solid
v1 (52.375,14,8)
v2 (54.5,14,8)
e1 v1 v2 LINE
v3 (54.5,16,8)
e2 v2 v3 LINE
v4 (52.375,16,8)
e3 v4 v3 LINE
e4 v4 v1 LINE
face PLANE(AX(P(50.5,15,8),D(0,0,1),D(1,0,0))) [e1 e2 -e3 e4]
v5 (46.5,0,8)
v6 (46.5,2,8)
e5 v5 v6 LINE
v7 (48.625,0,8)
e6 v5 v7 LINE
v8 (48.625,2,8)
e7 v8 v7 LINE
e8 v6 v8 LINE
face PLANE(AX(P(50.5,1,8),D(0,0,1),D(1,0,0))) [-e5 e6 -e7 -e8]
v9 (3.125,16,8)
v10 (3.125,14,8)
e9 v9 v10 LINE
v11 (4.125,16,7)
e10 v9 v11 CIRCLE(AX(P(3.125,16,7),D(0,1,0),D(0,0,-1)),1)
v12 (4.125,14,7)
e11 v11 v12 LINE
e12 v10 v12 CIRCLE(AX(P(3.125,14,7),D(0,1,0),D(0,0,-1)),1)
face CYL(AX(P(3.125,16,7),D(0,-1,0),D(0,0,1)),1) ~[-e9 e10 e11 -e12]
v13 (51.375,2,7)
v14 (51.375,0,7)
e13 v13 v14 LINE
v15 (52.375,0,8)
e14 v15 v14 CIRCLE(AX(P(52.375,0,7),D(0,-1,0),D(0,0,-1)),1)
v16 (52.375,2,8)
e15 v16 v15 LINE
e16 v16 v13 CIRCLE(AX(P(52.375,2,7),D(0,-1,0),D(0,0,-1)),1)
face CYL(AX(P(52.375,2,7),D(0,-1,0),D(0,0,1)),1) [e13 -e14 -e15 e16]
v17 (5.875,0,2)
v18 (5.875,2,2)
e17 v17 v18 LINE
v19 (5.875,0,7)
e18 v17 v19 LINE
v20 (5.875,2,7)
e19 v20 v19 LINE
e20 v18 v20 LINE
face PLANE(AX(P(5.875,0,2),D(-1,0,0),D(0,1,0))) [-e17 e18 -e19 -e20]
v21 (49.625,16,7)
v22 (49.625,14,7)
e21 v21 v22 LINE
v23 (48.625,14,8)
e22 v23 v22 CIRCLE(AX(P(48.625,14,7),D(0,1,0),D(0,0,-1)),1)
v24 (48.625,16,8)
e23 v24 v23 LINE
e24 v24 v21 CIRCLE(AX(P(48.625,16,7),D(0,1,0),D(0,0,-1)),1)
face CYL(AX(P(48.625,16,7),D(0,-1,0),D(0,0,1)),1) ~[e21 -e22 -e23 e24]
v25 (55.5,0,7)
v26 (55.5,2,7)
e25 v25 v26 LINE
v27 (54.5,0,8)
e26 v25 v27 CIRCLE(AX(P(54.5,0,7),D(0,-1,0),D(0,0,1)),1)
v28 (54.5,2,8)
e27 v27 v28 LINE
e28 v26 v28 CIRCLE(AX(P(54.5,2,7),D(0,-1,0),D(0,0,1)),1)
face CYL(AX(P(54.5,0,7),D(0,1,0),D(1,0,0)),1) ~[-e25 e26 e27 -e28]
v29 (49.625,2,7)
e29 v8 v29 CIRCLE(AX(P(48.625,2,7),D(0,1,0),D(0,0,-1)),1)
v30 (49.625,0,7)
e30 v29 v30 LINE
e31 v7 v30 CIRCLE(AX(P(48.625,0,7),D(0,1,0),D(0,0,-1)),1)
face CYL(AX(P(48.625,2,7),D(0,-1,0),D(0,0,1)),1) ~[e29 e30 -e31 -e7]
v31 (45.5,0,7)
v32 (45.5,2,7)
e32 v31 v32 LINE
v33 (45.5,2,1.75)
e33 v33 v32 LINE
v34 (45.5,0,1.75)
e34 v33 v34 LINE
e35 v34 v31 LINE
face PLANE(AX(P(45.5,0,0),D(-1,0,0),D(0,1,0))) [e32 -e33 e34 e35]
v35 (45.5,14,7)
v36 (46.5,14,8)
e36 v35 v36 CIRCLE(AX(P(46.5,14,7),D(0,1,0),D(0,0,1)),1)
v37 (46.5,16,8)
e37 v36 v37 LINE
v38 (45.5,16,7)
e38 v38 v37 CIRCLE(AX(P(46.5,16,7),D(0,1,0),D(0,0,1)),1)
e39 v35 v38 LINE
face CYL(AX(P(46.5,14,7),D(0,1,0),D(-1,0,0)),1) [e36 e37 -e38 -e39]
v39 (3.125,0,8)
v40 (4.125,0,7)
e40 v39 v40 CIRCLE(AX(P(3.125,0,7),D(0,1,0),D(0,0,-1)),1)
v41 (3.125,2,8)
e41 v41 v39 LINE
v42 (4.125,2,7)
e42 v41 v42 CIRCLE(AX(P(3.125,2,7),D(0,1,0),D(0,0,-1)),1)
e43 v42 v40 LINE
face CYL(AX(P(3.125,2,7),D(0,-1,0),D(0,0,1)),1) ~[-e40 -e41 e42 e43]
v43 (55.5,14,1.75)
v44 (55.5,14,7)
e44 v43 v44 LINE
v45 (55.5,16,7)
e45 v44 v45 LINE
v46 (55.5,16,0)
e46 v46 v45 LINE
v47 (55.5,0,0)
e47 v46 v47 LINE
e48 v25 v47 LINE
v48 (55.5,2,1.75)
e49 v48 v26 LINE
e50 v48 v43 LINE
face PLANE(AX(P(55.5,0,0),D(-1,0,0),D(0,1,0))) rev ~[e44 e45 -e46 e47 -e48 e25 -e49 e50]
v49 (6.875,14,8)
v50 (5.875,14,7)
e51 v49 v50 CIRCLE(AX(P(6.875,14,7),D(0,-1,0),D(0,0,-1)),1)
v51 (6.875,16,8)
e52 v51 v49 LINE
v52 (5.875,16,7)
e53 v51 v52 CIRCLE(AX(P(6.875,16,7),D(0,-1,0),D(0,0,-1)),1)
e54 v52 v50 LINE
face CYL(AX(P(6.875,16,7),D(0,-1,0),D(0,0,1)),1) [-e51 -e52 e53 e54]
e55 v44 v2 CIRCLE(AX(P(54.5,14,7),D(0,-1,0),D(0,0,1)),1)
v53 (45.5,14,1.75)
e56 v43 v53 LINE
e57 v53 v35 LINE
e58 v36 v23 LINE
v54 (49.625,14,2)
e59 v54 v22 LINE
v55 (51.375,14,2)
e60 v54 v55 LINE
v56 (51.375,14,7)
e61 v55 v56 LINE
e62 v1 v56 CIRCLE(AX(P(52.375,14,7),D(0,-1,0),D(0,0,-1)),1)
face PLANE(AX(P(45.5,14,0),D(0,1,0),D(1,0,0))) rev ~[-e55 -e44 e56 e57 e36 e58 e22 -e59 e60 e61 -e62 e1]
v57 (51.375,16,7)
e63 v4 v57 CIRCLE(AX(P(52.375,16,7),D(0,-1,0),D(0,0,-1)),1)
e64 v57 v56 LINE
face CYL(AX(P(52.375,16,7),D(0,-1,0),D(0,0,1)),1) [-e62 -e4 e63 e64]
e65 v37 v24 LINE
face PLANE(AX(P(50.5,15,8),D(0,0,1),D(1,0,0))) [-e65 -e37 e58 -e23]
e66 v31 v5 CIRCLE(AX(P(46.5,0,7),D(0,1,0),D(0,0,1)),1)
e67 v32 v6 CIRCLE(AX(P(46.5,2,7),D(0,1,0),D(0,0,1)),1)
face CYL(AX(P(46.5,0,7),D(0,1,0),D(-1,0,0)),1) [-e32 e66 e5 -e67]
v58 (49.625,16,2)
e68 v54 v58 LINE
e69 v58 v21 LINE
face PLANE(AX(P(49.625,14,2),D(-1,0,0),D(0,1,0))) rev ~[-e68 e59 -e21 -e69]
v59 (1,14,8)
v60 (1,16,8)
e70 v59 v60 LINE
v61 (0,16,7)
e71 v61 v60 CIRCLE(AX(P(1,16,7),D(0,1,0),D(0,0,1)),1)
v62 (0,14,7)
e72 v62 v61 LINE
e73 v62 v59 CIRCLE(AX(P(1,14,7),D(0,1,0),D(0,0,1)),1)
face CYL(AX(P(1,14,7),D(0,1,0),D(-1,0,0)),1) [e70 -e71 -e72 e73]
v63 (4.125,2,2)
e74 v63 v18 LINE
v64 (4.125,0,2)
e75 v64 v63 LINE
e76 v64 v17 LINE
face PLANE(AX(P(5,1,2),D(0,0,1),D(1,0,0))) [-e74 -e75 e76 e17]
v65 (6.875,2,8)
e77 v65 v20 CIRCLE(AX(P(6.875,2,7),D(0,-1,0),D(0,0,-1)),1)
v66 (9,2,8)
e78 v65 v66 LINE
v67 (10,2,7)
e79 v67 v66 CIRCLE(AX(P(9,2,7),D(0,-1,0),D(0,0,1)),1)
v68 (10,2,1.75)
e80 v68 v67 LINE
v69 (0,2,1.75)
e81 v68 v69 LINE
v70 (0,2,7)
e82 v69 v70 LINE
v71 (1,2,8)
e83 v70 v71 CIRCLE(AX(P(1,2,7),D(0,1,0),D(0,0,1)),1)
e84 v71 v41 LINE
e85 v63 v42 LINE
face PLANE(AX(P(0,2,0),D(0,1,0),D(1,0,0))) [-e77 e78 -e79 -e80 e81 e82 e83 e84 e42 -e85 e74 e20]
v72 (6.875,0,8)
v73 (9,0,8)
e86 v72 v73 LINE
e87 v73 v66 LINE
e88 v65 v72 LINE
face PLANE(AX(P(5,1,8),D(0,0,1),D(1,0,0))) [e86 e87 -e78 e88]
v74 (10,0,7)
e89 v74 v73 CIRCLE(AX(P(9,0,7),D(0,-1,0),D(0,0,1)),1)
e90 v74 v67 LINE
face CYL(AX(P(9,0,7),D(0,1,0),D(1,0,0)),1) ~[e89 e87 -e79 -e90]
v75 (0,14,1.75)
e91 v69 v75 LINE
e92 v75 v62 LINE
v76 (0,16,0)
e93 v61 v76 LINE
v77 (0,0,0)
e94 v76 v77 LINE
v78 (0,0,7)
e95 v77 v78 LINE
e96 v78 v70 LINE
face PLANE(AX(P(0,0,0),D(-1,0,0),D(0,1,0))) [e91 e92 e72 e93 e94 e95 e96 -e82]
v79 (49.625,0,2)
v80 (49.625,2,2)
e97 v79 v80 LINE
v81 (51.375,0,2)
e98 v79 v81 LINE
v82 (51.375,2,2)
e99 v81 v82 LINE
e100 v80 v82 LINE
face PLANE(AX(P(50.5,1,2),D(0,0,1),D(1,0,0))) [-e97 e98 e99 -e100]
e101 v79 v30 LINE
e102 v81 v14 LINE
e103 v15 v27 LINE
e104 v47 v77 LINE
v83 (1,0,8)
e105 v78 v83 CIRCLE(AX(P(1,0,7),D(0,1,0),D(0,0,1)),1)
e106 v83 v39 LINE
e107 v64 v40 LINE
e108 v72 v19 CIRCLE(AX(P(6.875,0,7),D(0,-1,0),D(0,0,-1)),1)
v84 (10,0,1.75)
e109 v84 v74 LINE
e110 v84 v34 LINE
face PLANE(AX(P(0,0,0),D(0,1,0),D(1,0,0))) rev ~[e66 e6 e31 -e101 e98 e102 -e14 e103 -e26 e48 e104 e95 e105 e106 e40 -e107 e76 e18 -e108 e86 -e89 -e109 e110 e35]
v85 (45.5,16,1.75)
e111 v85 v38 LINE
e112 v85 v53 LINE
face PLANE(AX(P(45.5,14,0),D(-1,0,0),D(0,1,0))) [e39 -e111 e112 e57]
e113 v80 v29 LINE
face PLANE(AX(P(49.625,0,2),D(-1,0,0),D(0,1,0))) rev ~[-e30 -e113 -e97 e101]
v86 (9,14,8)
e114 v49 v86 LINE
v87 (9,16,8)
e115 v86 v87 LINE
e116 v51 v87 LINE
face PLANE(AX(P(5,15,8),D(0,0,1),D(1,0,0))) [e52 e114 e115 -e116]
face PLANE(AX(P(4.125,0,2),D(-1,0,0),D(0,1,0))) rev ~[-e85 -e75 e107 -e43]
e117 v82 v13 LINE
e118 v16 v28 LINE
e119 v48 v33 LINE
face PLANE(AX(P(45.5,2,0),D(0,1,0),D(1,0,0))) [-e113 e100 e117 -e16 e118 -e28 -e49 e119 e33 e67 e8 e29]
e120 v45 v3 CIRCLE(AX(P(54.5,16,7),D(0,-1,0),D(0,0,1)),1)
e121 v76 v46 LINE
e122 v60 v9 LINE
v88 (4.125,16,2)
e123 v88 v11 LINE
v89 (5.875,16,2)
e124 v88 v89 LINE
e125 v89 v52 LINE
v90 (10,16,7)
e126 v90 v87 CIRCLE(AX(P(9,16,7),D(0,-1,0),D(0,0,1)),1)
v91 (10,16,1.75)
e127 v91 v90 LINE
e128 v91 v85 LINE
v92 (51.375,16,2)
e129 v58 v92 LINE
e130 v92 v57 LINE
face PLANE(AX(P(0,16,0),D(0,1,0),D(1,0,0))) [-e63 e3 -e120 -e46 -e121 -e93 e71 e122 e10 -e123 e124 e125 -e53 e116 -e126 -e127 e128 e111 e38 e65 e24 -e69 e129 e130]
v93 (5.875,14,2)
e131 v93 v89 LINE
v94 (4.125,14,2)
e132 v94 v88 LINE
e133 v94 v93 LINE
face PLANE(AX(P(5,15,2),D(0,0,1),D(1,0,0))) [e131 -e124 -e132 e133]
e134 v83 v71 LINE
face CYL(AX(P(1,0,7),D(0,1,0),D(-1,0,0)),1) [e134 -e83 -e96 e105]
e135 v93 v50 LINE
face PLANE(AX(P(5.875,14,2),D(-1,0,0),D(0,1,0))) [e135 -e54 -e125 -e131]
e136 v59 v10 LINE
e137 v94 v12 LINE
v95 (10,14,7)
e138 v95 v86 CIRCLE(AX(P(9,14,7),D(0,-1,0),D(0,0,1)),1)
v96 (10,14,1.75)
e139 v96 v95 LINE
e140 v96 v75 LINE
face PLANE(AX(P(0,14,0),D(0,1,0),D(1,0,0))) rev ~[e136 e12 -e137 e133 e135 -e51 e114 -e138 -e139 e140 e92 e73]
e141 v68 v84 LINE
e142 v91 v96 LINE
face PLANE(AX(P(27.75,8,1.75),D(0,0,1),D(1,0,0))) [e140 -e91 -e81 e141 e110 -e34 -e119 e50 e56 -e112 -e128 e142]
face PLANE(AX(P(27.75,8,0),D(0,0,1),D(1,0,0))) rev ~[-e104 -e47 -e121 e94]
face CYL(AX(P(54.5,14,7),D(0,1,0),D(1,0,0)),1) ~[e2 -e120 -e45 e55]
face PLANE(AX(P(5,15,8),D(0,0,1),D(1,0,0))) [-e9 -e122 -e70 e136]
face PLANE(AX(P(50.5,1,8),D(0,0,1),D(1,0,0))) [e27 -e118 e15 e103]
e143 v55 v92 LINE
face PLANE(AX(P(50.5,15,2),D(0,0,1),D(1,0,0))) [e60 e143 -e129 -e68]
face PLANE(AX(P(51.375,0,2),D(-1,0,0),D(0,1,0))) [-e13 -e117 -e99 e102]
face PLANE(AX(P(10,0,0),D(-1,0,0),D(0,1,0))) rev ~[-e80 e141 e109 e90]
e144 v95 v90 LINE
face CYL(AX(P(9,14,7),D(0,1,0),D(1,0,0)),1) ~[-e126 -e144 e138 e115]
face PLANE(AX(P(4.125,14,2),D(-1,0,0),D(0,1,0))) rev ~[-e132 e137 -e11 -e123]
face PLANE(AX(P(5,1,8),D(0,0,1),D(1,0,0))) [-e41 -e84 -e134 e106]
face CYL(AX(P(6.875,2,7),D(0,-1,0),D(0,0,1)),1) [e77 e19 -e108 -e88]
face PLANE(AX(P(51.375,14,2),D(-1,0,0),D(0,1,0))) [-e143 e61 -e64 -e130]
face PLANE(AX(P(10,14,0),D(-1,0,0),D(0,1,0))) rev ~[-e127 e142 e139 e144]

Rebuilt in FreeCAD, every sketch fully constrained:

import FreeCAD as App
import Part
import Sketcher


def edges_at(feature, points):
    """Names of the edges that pass closest to the given points."""
    edges = feature.Shape.Edges
    near = lambda p: min(range(len(edges)), key=lambda i: edges[i].distToShape(Part.Vertex(*p))[0])
    return sorted({f"Edge{near(p) + 1}" for p in points})


def add_polygon(sketch, points):
    """Adds a closed chain of lines whose ends are joined by coincident constraints."""
    first, n = sketch.GeometryCount, len(points)
    for a, b in zip(points, points[1:] + points[:1]):
        sketch.addGeometry(Part.LineSegment(App.Vector(*a, 0), App.Vector(*b, 0)), False)
    for i in range(n):
        sketch.addConstraint(Sketcher.Constraint("Coincident", first + i, 2, first + (i + 1) % n, 1))

doc = App.newDocument("Part")
body = doc.addObject("PartDesign::Body", "Body")

# Sketch on XY plane
sketch1 = body.newObject("Sketcher::SketchObject", "Sketch")
sketch1.AttachmentSupport = (doc.getObject("XY_Plane"), [""])
sketch1.MapMode = "FlatFace"
sketch1.AttachmentOffset = App.Placement(App.Vector(0, 0, 2), App.Rotation())
add_polygon(sketch1, [(4.1, 2), (4.1, 0), (5.9, 0), (5.9, 2)])  # lines 0-3
sketch1.addConstraint(Sketcher.Constraint("Vertical", 0))
sketch1.addConstraint(Sketcher.Constraint("Horizontal", 1))
sketch1.addConstraint(Sketcher.Constraint("Vertical", 2))
sketch1.addConstraint(Sketcher.Constraint("Horizontal", 3))
sketch1.addConstraint(Sketcher.Constraint("PointOnObject", 0, 2, -1))
sketch1.addConstraint(Sketcher.Constraint("DistanceY", 0, 2, 0, 1, 2.0))
sketch1.addConstraint(Sketcher.Constraint("DistanceX", 1, 1, 1, 2, 1.75))
sketch1.addConstraint(Sketcher.Constraint("DistanceX", -1, 1, 0, 2, 4.125))
pad1 = body.newObject("PartDesign::Pad", "Pad")
pad1.Profile = sketch1
pad1.Length = 10
body2 = doc.addObject("PartDesign::Body", "Body001")

# Sketch on XY plane
sketch2 = body2.newObject("Sketcher::SketchObject", "Sketch001")
sketch2.AttachmentSupport = (doc.getObject("XY_Plane001"), [""])
sketch2.MapMode = "FlatFace"
add_polygon(sketch2, [(0, 2), (0, 0), (10, 0), (10, 2)])  # lines 0-3
sketch2.addConstraint(Sketcher.Constraint("Vertical", 0))
sketch2.addConstraint(Sketcher.Constraint("Horizontal", 1))
sketch2.addConstraint(Sketcher.Constraint("Vertical", 2))
sketch2.addConstraint(Sketcher.Constraint("Horizontal", 3))
sketch2.addConstraint(Sketcher.Constraint("Coincident", 0, 2, -1, 1))
sketch2.addConstraint(Sketcher.Constraint("DistanceX", 1, 1, 1, 2, 10.0))
sketch2.addConstraint(Sketcher.Constraint("DistanceY", 0, 2, 0, 1, 2.0))
pad2 = body2.newObject("PartDesign::Pad", "Pad001")
pad2.Profile = sketch2
pad2.Length = 8
doc.recompute()

boolean = body2.newObject("PartDesign::Boolean", "Boolean")
boolean.Type = "Cut"
boolean.addObjects([body])
doc.recompute()

fillet = body2.newObject("PartDesign::Fillet", "Fillet")
fillet.Base = (boolean, edges_at(boolean, [
    (0, 1, 8),
    (4.125, 1, 8),
    (10, 1, 8),
    (5.875, 1, 8),
]))
fillet.Radius = 1
body3 = doc.addObject("PartDesign::Body", "Body002")

# Sketch on XY plane
sketch3 = body3.newObject("Sketcher::SketchObject", "Sketch002")
sketch3.AttachmentSupport = (doc.getObject("XY_Plane002"), [""])
sketch3.MapMode = "FlatFace"
sketch3.AttachmentOffset = App.Placement(App.Vector(0, 0, 2), App.Rotation())
add_polygon(sketch3, [(4.1, 2), (4.1, 0), (5.9, 0), (5.9, 2)])  # lines 0-3
sketch3.addConstraint(Sketcher.Constraint("Vertical", 0))
sketch3.addConstraint(Sketcher.Constraint("Horizontal", 1))
sketch3.addConstraint(Sketcher.Constraint("Vertical", 2))
sketch3.addConstraint(Sketcher.Constraint("Horizontal", 3))
sketch3.addConstraint(Sketcher.Constraint("PointOnObject", 0, 2, -1))
sketch3.addConstraint(Sketcher.Constraint("DistanceY", 0, 2, 0, 1, 2.0))
sketch3.addConstraint(Sketcher.Constraint("DistanceX", 1, 1, 1, 2, 1.75))
sketch3.addConstraint(Sketcher.Constraint("DistanceX", -1, 1, 0, 2, 4.125))
pad3 = body3.newObject("PartDesign::Pad", "Pad002")
pad3.Profile = sketch3
pad3.Length = 10
body4 = doc.addObject("PartDesign::Body", "Body003")

# Sketch on XY plane
sketch4 = body4.newObject("Sketcher::SketchObject", "Sketch003")
sketch4.AttachmentSupport = (doc.getObject("XY_Plane003"), [""])
sketch4.MapMode = "FlatFace"
add_polygon(sketch4, [(0, 2), (0, 0), (10, 0), (10, 2)])  # lines 0-3
sketch4.addConstraint(Sketcher.Constraint("Vertical", 0))
sketch4.addConstraint(Sketcher.Constraint("Horizontal", 1))
sketch4.addConstraint(Sketcher.Constraint("Vertical", 2))
sketch4.addConstraint(Sketcher.Constraint("Horizontal", 3))
sketch4.addConstraint(Sketcher.Constraint("Coincident", 0, 2, -1, 1))
sketch4.addConstraint(Sketcher.Constraint("DistanceX", 1, 1, 1, 2, 10.0))
sketch4.addConstraint(Sketcher.Constraint("DistanceY", 0, 2, 0, 1, 2.0))
pad4 = body4.newObject("PartDesign::Pad", "Pad003")
pad4.Profile = sketch4
pad4.Length = 8
doc.recompute()

boolean2 = body4.newObject("PartDesign::Boolean", "Boolean001")
boolean2.Type = "Cut"
boolean2.addObjects([body3])
doc.recompute()

fillet2 = body4.newObject("PartDesign::Fillet", "Fillet001")
fillet2.Base = (boolean2, edges_at(boolean2, [
    (0, 1, 8),
    (4.125, 1, 8),
    (10, 1, 8),
    (5.875, 1, 8),
]))
fillet2.Radius = 1
body5 = doc.addObject("PartDesign::Body", "Body004")
doc.recompute()

body4.Placement = App.Placement(App.Vector(0, 14, 0), App.Rotation(App.Vector(0, 0, 1), 0))
boolean3 = body5.newObject("PartDesign::Boolean", "Boolean002")
boolean3.Type = "Fuse"
boolean3.addObjects([body4])
body6 = doc.addObject("PartDesign::Body", "Body005")

# Sketch on XY plane
sketch5 = body6.newObject("Sketcher::SketchObject", "Sketch004")
sketch5.AttachmentSupport = (doc.getObject("XY_Plane005"), [""])
sketch5.MapMode = "FlatFace"
sketch5.AttachmentOffset = App.Placement(App.Vector(0, 0, 2), App.Rotation())
add_polygon(sketch5, [(4.1, 2), (4.1, 0), (5.9, 0), (5.9, 2)])  # lines 0-3
sketch5.addConstraint(Sketcher.Constraint("Vertical", 0))
sketch5.addConstraint(Sketcher.Constraint("Horizontal", 1))
sketch5.addConstraint(Sketcher.Constraint("Vertical", 2))
sketch5.addConstraint(Sketcher.Constraint("Horizontal", 3))
sketch5.addConstraint(Sketcher.Constraint("PointOnObject", 0, 2, -1))
sketch5.addConstraint(Sketcher.Constraint("DistanceY", 0, 2, 0, 1, 2.0))
sketch5.addConstraint(Sketcher.Constraint("DistanceX", 1, 1, 1, 2, 1.75))
sketch5.addConstraint(Sketcher.Constraint("DistanceX", -1, 1, 0, 2, 4.125))
pad5 = body6.newObject("PartDesign::Pad", "Pad004")
pad5.Profile = sketch5
pad5.Length = 10
body7 = doc.addObject("PartDesign::Body", "Body006")

# Sketch on XY plane
sketch6 = body7.newObject("Sketcher::SketchObject", "Sketch005")
sketch6.AttachmentSupport = (doc.getObject("XY_Plane006"), [""])
sketch6.MapMode = "FlatFace"
add_polygon(sketch6, [(0, 2), (0, 0), (10, 0), (10, 2)])  # lines 0-3
sketch6.addConstraint(Sketcher.Constraint("Vertical", 0))
sketch6.addConstraint(Sketcher.Constraint("Horizontal", 1))
sketch6.addConstraint(Sketcher.Constraint("Vertical", 2))
sketch6.addConstraint(Sketcher.Constraint("Horizontal", 3))
sketch6.addConstraint(Sketcher.Constraint("Coincident", 0, 2, -1, 1))
sketch6.addConstraint(Sketcher.Constraint("DistanceX", 1, 1, 1, 2, 10.0))
sketch6.addConstraint(Sketcher.Constraint("DistanceY", 0, 2, 0, 1, 2.0))
pad6 = body7.newObject("PartDesign::Pad", "Pad005")
pad6.Profile = sketch6
pad6.Length = 8
doc.recompute()

boolean4 = body7.newObject("PartDesign::Boolean", "Boolean003")
boolean4.Type = "Cut"
boolean4.addObjects([body6])
doc.recompute()

fillet3 = body7.newObject("PartDesign::Fillet", "Fillet002")
fillet3.Base = (boolean4, edges_at(boolean4, [
    (0, 1, 8),
    (4.125, 1, 8),
    (10, 1, 8),
    (5.875, 1, 8),
]))
fillet3.Radius = 1
body8 = doc.addObject("PartDesign::Body", "Body007")
doc.recompute()

body7.Placement = App.Placement(App.Vector(45.5, 0, 0), App.Rotation(App.Vector(0, 0, 1), 0))
boolean5 = body8.newObject("PartDesign::Boolean", "Boolean004")
boolean5.Type = "Fuse"
boolean5.addObjects([body7])
body9 = doc.addObject("PartDesign::Body", "Body008")

# Sketch on XY plane
sketch7 = body9.newObject("Sketcher::SketchObject", "Sketch006")
sketch7.AttachmentSupport = (doc.getObject("XY_Plane008"), [""])
sketch7.MapMode = "FlatFace"
sketch7.AttachmentOffset = App.Placement(App.Vector(0, 0, 2), App.Rotation())
add_polygon(sketch7, [(4.1, 2), (4.1, 0), (5.9, 0), (5.9, 2)])  # lines 0-3
sketch7.addConstraint(Sketcher.Constraint("Vertical", 0))
sketch7.addConstraint(Sketcher.Constraint("Horizontal", 1))
sketch7.addConstraint(Sketcher.Constraint("Vertical", 2))
sketch7.addConstraint(Sketcher.Constraint("Horizontal", 3))
sketch7.addConstraint(Sketcher.Constraint("PointOnObject", 0, 2, -1))
sketch7.addConstraint(Sketcher.Constraint("DistanceY", 0, 2, 0, 1, 2.0))
sketch7.addConstraint(Sketcher.Constraint("DistanceX", 1, 1, 1, 2, 1.75))
sketch7.addConstraint(Sketcher.Constraint("DistanceX", -1, 1, 0, 2, 4.125))
pad7 = body9.newObject("PartDesign::Pad", "Pad006")
pad7.Profile = sketch7
pad7.Length = 10
body10 = doc.addObject("PartDesign::Body", "Body009")

# Sketch on XY plane
sketch8 = body10.newObject("Sketcher::SketchObject", "Sketch007")
sketch8.AttachmentSupport = (doc.getObject("XY_Plane009"), [""])
sketch8.MapMode = "FlatFace"
add_polygon(sketch8, [(0, 2), (0, 0), (10, 0), (10, 2)])  # lines 0-3
sketch8.addConstraint(Sketcher.Constraint("Vertical", 0))
sketch8.addConstraint(Sketcher.Constraint("Horizontal", 1))
sketch8.addConstraint(Sketcher.Constraint("Vertical", 2))
sketch8.addConstraint(Sketcher.Constraint("Horizontal", 3))
sketch8.addConstraint(Sketcher.Constraint("Coincident", 0, 2, -1, 1))
sketch8.addConstraint(Sketcher.Constraint("DistanceX", 1, 1, 1, 2, 10.0))
sketch8.addConstraint(Sketcher.Constraint("DistanceY", 0, 2, 0, 1, 2.0))
pad8 = body10.newObject("PartDesign::Pad", "Pad007")
pad8.Profile = sketch8
pad8.Length = 8
doc.recompute()

boolean6 = body10.newObject("PartDesign::Boolean", "Boolean005")
boolean6.Type = "Cut"
boolean6.addObjects([body9])
doc.recompute()

fillet4 = body10.newObject("PartDesign::Fillet", "Fillet003")
fillet4.Base = (boolean6, edges_at(boolean6, [
    (0, 1, 8),
    (4.125, 1, 8),
    (10, 1, 8),
    (5.875, 1, 8),
]))
fillet4.Radius = 1
body11 = doc.addObject("PartDesign::Body", "Body010")
doc.recompute()

body10.Placement = App.Placement(App.Vector(45.5, 14, 0), App.Rotation(App.Vector(0, 0, 1), 0))
boolean7 = body11.newObject("PartDesign::Boolean", "Boolean006")
boolean7.Type = "Fuse"
boolean7.addObjects([body10])
body12 = doc.addObject("PartDesign::Body", "Body011")

# Sketch on XY plane
sketch9 = body12.newObject("Sketcher::SketchObject", "Sketch008")
sketch9.AttachmentSupport = (doc.getObject("XY_Plane011"), [""])
sketch9.MapMode = "FlatFace"
add_polygon(sketch9, [(0, 16), (0, 0), (56, 0), (56, 16)])  # lines 0-3
sketch9.addConstraint(Sketcher.Constraint("Vertical", 0))
sketch9.addConstraint(Sketcher.Constraint("Horizontal", 1))
sketch9.addConstraint(Sketcher.Constraint("Vertical", 2))
sketch9.addConstraint(Sketcher.Constraint("Horizontal", 3))
sketch9.addConstraint(Sketcher.Constraint("Coincident", 0, 2, -1, 1))
sketch9.addConstraint(Sketcher.Constraint("DistanceY", 0, 2, 0, 1, 16.0))
sketch9.addConstraint(Sketcher.Constraint("DistanceX", 1, 1, 1, 2, 55.5))
pad9 = body12.newObject("PartDesign::Pad", "Pad008")
pad9.Profile = sketch9
pad9.Length = 1.75
doc.recompute()

boolean8 = body12.newObject("PartDesign::Boolean", "Boolean007")
boolean8.Type = "Fuse"
boolean8.addObjects([body2])
doc.recompute()

boolean9 = body12.newObject("PartDesign::Boolean", "Boolean008")
boolean9.Type = "Fuse"
boolean9.addObjects([body5])
doc.recompute()

boolean10 = body12.newObject("PartDesign::Boolean", "Boolean009")
boolean10.Type = "Fuse"
boolean10.addObjects([body8])
doc.recompute()

boolean11 = body12.newObject("PartDesign::Boolean", "Boolean010")
boolean11.Type = "Fuse"
boolean11.addObjects([body11])

doc.recompute()
